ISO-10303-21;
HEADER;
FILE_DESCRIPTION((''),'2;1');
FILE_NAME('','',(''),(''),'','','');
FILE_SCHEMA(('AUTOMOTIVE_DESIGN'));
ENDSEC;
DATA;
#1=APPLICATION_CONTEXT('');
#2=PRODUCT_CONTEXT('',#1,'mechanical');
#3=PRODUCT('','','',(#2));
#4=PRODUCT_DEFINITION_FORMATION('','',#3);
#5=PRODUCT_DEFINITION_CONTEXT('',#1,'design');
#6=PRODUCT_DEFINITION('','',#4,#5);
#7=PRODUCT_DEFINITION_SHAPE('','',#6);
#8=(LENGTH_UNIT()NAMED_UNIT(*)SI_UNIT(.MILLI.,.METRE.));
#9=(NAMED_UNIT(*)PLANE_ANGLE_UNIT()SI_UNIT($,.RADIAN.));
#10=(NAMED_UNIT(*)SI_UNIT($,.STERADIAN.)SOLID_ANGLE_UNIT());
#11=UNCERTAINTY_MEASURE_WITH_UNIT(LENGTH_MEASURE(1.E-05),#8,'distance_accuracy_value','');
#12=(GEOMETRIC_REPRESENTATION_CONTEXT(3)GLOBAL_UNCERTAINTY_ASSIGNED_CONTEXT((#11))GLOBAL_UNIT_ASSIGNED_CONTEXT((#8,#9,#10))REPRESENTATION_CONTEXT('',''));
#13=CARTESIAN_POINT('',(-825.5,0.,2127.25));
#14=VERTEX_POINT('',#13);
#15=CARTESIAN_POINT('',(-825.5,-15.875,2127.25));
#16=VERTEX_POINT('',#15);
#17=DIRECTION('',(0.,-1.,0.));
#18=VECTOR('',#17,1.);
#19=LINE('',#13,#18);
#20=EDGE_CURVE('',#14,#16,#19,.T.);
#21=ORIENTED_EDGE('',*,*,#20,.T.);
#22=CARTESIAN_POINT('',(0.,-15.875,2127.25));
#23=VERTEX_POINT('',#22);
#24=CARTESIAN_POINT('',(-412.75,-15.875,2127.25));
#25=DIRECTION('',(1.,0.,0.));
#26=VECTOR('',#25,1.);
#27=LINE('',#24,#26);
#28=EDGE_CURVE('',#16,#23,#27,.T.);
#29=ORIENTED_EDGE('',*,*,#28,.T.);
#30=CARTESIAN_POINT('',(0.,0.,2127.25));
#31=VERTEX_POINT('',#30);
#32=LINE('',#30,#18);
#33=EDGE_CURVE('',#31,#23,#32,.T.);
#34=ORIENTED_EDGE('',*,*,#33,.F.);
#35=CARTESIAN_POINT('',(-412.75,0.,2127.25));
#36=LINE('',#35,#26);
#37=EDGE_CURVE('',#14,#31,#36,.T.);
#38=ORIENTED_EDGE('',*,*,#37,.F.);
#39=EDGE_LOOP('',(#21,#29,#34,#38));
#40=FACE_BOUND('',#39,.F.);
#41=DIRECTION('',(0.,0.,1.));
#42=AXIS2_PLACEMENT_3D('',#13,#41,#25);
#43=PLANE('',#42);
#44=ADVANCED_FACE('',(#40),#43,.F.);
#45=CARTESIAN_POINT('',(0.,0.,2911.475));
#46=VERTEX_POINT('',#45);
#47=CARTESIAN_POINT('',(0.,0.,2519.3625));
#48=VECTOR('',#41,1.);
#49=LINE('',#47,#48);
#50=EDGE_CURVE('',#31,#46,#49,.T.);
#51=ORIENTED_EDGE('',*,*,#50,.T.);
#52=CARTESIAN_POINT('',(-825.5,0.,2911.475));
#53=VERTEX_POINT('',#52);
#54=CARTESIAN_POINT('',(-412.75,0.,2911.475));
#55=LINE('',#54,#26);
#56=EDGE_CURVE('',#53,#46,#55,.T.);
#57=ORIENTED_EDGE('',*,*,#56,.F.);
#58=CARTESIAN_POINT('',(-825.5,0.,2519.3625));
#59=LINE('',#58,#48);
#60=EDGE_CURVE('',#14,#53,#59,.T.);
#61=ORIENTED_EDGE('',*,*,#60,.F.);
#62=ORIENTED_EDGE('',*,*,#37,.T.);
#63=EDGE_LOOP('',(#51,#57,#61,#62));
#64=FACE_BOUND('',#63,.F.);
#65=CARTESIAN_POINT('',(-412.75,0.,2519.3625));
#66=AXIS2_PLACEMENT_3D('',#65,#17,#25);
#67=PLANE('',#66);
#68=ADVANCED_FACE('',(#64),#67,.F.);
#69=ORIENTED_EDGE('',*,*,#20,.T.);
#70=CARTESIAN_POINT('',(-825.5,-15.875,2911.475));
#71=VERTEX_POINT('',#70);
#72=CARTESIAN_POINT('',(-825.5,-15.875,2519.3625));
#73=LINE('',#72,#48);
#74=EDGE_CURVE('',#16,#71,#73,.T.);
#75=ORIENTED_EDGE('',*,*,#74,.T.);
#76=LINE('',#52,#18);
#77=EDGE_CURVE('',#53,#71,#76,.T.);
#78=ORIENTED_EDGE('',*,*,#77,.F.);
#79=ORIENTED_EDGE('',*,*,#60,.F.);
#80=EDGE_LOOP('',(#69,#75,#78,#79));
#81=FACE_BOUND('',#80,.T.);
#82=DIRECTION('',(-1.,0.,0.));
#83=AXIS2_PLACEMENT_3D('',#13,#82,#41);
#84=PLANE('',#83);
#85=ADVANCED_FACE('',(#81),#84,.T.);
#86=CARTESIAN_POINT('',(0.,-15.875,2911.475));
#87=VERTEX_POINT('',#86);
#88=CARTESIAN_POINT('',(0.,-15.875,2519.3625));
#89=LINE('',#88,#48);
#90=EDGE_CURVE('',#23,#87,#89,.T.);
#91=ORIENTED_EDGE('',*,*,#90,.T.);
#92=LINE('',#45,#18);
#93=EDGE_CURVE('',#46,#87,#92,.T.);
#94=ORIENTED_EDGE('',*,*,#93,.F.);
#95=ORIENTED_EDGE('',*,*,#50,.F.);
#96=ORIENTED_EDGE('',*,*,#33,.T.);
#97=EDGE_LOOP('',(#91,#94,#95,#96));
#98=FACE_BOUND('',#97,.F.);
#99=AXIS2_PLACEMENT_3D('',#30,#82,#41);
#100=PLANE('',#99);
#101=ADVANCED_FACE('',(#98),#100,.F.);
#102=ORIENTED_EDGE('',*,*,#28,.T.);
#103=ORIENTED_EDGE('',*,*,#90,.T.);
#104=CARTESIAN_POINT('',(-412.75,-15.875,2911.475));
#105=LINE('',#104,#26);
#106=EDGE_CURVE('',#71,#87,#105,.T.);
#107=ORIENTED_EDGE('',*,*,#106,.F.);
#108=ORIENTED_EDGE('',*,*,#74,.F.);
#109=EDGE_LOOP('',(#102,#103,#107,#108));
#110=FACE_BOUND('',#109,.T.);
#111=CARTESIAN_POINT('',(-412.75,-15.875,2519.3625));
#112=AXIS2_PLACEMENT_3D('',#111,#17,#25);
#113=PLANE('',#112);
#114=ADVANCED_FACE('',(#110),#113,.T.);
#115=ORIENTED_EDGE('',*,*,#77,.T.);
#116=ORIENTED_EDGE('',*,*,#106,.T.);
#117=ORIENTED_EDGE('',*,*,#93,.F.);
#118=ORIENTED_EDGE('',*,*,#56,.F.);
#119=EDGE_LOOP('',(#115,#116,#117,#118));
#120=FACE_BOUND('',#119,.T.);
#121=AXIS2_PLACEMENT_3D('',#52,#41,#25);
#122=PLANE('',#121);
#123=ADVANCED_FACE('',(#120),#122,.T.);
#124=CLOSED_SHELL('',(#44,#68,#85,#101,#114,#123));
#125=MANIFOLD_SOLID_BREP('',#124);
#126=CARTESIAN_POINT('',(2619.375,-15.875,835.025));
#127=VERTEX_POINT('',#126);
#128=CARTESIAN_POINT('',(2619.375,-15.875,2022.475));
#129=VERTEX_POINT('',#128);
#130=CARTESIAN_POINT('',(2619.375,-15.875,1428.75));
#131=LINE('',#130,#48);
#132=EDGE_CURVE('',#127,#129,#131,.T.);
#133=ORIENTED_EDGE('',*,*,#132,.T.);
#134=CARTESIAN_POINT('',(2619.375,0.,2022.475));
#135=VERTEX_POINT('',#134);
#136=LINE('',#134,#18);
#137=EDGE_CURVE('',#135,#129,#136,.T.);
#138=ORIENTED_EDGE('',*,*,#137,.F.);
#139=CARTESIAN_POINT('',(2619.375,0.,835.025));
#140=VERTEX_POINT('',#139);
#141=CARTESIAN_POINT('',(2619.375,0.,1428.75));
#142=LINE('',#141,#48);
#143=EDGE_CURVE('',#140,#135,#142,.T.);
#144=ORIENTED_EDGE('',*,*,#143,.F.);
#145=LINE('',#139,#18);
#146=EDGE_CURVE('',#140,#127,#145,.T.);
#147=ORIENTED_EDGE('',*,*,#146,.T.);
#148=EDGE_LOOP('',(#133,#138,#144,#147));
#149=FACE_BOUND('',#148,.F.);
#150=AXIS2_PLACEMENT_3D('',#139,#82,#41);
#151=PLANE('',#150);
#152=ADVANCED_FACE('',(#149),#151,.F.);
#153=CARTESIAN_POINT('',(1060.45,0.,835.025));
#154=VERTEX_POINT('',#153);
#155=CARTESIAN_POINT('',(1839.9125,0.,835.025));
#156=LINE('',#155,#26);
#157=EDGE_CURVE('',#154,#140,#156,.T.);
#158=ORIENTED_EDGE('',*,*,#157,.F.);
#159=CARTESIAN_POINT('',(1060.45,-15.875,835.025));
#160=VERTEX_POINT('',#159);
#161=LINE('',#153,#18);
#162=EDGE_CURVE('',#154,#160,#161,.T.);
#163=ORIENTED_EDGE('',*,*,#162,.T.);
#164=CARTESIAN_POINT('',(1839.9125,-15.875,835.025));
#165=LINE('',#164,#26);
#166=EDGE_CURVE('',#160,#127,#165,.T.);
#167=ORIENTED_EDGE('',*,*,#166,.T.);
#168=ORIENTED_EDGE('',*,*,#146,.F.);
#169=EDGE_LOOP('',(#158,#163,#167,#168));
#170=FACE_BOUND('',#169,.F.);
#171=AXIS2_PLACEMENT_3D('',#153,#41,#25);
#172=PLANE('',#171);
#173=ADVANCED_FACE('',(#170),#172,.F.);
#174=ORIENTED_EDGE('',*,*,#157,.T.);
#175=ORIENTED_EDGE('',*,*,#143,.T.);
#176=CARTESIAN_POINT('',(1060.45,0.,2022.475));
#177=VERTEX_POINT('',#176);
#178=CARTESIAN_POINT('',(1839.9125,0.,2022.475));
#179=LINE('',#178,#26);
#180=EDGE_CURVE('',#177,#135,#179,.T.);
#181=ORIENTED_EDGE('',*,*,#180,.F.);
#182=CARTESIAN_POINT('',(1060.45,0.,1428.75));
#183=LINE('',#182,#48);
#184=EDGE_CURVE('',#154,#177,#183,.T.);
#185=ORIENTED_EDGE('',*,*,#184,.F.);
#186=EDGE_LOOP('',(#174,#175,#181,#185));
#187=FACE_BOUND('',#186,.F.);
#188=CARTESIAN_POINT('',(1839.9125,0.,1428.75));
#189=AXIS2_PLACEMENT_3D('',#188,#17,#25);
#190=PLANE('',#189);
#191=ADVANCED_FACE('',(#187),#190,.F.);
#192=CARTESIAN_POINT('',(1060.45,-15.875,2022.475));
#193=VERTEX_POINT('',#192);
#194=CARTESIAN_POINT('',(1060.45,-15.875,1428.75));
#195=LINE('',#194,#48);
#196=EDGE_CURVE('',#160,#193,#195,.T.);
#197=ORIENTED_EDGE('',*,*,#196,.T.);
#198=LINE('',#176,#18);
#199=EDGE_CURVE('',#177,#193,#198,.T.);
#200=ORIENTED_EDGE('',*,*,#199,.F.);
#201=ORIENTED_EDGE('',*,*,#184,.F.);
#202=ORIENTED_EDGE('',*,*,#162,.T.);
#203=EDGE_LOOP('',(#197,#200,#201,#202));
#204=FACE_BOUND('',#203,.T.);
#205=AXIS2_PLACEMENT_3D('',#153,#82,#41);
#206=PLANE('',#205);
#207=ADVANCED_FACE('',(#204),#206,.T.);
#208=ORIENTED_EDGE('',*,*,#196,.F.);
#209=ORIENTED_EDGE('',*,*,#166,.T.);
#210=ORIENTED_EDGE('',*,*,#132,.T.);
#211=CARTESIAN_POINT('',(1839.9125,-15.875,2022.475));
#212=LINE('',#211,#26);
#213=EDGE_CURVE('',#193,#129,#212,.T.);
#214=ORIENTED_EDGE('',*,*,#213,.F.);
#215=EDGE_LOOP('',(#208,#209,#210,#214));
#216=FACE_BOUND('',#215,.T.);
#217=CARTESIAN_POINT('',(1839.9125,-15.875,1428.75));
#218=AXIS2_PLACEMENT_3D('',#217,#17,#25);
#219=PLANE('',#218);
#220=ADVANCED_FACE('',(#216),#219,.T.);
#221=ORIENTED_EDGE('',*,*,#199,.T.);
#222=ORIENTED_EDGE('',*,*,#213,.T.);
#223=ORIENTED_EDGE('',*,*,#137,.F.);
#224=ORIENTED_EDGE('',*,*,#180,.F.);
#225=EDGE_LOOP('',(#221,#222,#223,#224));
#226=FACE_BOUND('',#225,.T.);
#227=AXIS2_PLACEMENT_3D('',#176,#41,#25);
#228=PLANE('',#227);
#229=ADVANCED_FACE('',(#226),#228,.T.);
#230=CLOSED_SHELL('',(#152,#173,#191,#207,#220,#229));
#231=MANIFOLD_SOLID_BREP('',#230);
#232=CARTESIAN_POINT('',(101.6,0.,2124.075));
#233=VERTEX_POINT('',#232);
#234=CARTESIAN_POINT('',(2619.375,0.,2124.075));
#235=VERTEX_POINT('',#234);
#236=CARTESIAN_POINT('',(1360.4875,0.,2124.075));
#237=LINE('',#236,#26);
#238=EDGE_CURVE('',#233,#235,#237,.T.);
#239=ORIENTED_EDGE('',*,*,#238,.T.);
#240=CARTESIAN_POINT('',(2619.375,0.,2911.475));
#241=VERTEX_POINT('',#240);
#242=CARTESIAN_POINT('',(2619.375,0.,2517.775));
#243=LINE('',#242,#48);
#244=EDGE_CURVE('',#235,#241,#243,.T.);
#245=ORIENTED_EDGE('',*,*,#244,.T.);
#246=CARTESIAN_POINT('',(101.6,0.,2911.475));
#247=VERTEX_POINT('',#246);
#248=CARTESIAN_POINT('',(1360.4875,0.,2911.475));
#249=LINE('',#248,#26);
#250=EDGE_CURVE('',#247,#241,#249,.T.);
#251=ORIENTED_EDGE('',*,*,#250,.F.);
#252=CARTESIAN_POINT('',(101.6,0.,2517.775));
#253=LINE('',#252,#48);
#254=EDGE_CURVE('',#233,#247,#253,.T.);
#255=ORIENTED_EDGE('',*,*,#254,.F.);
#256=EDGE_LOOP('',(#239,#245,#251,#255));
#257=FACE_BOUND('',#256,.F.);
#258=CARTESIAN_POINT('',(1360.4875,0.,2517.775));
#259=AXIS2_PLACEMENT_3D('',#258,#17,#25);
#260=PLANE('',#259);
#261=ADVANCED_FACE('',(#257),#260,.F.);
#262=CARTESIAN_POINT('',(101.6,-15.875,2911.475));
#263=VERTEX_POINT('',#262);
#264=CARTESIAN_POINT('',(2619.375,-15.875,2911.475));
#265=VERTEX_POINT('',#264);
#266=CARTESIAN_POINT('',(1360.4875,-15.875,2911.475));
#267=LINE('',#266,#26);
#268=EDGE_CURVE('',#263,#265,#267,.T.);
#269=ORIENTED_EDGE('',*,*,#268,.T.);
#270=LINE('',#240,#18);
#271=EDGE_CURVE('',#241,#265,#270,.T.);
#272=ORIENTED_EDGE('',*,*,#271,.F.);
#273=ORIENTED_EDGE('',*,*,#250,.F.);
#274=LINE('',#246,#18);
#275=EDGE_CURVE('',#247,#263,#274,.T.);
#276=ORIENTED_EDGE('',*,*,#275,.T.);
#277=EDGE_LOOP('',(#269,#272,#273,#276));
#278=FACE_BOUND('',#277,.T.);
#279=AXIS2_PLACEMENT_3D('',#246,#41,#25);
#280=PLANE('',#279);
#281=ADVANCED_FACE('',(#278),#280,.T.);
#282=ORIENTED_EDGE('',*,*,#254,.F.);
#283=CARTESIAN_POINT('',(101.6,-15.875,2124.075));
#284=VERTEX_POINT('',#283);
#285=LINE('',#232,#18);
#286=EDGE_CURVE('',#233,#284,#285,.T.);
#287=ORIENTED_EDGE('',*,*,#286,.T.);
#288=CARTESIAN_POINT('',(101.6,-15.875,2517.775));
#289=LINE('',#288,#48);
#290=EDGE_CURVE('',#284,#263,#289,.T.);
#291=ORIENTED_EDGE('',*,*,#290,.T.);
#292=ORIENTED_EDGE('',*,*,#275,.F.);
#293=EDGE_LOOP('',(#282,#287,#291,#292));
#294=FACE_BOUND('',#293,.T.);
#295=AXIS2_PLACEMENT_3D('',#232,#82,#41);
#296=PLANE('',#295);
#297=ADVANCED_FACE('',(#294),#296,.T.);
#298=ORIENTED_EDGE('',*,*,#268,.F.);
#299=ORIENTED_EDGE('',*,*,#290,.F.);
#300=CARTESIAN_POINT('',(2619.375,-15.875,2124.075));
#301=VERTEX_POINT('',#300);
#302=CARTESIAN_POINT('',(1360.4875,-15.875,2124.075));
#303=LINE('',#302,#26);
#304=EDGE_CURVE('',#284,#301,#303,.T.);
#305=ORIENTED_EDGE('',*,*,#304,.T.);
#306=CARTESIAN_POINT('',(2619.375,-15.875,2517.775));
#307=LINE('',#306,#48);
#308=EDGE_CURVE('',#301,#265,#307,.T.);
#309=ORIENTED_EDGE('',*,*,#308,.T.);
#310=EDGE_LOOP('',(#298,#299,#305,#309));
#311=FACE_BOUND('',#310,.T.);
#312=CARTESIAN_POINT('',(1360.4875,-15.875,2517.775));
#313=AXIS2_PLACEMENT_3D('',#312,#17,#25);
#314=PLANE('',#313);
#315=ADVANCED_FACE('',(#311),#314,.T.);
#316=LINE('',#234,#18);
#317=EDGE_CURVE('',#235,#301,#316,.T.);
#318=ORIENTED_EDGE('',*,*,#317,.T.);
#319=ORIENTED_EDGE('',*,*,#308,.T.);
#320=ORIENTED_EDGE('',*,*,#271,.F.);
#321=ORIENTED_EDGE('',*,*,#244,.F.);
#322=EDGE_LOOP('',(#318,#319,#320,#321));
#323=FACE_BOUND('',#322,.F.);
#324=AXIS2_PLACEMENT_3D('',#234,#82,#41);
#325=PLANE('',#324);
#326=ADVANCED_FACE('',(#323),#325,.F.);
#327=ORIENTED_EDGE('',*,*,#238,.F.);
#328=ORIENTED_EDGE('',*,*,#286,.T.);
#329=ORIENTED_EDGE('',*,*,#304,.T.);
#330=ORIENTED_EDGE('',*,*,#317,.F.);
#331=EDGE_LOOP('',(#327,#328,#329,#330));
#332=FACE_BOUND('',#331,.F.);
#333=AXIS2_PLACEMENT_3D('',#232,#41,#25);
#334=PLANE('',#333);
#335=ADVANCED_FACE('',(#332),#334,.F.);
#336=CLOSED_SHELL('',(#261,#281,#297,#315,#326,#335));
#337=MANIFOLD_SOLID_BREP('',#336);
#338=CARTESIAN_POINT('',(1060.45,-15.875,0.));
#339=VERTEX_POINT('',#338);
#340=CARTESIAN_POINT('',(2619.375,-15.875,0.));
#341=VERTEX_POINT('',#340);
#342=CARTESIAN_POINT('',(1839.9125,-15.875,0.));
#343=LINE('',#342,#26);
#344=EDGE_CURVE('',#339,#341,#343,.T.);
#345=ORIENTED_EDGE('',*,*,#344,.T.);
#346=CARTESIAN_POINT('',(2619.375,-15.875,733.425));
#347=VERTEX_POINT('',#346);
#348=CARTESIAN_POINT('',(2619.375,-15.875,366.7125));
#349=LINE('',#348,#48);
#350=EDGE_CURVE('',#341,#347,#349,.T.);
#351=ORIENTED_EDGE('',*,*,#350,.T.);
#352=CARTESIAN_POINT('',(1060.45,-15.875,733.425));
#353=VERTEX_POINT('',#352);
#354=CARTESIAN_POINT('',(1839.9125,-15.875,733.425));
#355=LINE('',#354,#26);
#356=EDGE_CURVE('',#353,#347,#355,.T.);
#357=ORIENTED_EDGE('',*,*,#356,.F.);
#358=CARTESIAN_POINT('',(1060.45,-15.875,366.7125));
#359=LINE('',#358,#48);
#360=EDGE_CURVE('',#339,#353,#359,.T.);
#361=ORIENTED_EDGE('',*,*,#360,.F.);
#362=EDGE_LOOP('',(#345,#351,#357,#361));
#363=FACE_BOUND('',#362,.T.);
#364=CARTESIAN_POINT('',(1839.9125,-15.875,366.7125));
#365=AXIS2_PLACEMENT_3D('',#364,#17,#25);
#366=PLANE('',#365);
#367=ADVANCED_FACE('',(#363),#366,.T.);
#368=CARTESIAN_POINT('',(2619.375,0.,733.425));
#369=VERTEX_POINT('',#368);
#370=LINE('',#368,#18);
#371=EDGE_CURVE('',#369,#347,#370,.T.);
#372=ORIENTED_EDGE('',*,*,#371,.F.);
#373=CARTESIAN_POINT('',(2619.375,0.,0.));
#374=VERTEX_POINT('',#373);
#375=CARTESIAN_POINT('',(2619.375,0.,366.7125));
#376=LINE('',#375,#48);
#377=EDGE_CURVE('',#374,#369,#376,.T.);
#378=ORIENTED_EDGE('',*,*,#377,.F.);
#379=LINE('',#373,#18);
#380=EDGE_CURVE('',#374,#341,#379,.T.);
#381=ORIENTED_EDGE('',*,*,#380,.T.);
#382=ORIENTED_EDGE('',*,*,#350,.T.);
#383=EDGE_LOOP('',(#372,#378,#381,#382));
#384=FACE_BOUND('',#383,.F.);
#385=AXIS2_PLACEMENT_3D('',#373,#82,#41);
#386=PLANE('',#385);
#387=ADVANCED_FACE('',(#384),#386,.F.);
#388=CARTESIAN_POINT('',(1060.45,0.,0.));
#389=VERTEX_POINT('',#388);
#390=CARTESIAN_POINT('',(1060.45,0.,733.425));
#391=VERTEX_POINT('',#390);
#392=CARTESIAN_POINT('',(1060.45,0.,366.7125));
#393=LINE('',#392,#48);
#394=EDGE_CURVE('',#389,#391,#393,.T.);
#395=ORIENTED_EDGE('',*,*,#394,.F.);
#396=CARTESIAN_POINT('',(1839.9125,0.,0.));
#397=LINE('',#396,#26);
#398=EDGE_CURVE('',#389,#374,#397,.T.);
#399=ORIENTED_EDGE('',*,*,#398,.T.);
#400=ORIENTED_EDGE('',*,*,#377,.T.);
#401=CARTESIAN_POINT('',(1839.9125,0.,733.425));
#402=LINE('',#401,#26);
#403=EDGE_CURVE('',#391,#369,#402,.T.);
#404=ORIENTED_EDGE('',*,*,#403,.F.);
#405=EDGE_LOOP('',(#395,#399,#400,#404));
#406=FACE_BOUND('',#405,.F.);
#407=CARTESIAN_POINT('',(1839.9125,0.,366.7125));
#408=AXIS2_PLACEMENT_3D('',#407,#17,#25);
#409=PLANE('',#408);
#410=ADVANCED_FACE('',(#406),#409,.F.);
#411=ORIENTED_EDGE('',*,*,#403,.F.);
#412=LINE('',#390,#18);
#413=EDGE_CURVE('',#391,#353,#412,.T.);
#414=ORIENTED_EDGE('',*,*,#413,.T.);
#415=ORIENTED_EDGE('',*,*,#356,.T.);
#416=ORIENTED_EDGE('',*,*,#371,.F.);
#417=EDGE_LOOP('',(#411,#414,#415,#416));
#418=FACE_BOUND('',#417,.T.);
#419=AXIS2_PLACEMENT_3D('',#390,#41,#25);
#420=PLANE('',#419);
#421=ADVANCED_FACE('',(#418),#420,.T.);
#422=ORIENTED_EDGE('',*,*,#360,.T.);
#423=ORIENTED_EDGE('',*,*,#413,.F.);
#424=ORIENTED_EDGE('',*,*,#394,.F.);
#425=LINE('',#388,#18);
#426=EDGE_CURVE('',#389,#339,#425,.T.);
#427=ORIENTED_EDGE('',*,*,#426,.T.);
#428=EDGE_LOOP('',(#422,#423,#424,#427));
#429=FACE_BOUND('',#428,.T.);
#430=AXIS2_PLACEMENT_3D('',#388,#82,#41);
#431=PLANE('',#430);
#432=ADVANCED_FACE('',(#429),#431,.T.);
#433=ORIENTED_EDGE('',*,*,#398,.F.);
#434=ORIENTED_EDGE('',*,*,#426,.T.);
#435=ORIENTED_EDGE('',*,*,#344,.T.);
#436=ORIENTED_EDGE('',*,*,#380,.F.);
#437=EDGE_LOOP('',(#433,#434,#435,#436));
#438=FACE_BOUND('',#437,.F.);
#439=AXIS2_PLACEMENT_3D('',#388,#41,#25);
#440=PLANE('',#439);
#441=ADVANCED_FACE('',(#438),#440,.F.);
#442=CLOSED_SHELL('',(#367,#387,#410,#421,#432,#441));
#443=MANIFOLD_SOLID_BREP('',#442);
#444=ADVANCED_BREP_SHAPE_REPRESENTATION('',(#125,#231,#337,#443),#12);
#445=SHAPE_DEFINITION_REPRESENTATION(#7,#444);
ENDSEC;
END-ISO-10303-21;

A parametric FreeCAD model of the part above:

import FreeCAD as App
import Part
import Sketcher
from FreeCAD import Vector
Q = App.Units.Quantity

doc = App.newDocument("Part")
body = doc.addObject("PartDesign::Body", "Body")
body.AllowCompound = True

# Sketch on XZ plane
sketch1 = doc.addObject("Sketcher::SketchObject", "Sketch")
body.addObject(sketch1)
sketch1.AttachmentSupport = (doc.XZ_Plane, [""])
sketch1.MapMode = "FlatFace"
sketch1.addGeometry([
    Part.LineSegment(Vector(-826, 2911, 0), Vector(-826, 2127, 0)),  # 0
    Part.LineSegment(Vector(-826, 2127, 0), Vector(0, 2127, 0)),  # 1
    Part.LineSegment(Vector(0, 2127, 0), Vector(0, 2911, 0)),  # 2
    Part.LineSegment(Vector(0, 2911, 0), Vector(-826, 2911, 0)),  # 3
    Part.LineSegment(Vector(102, 2911, 0), Vector(102, 2124, 0)),  # 4
    Part.LineSegment(Vector(102, 2124, 0), Vector(2619, 2124, 0)),  # 5
    Part.LineSegment(Vector(2619, 2124, 0), Vector(2619, 2911, 0)),  # 6
    Part.LineSegment(Vector(2619, 2911, 0), Vector(102, 2911, 0)),  # 7
    Part.LineSegment(Vector(1060, 2022, 0), Vector(1060, 835, 0)),  # 8
    Part.LineSegment(Vector(1060, 835, 0), Vector(2619, 835, 0)),  # 9
    Part.LineSegment(Vector(2619, 835, 0), Vector(2619, 2022, 0)),  # 10
    Part.LineSegment(Vector(2619, 2022, 0), Vector(1060, 2022, 0)),  # 11
    Part.LineSegment(Vector(1060, 733, 0), Vector(1060, 0, 0)),  # 12
    Part.LineSegment(Vector(1060, 0, 0), Vector(2619, 0, 0)),  # 13
    Part.LineSegment(Vector(2619, 0, 0), Vector(2619, 733, 0)),  # 14
    Part.LineSegment(Vector(2619, 733, 0), Vector(1060, 733, 0)),  # 15
], False)
sketch1.addConstraint([
    Sketcher.Constraint("Coincident", 0, 2, 1, 1),
    Sketcher.Constraint("Coincident", 1, 2, 2, 1),
    Sketcher.Constraint("Coincident", 2, 2, 3, 1),
    Sketcher.Constraint("Coincident", 3, 2, 0, 1),
    Sketcher.Constraint("Coincident", 4, 2, 5, 1),
    Sketcher.Constraint("Coincident", 5, 2, 6, 1),
    Sketcher.Constraint("Coincident", 6, 2, 7, 1),
    Sketcher.Constraint("Coincident", 7, 2, 4, 1),
    Sketcher.Constraint("Coincident", 8, 2, 9, 1),
    Sketcher.Constraint("Coincident", 9, 2, 10, 1),
    Sketcher.Constraint("Coincident", 10, 2, 11, 1),
    Sketcher.Constraint("Coincident", 11, 2, 8, 1),
    Sketcher.Constraint("Coincident", 12, 2, 13, 1),
    Sketcher.Constraint("Coincident", 13, 2, 14, 1),
    Sketcher.Constraint("Coincident", 14, 2, 15, 1),
    Sketcher.Constraint("Coincident", 15, 2, 12, 1),
    Sketcher.Constraint("Vertical", 0),
    Sketcher.Constraint("Horizontal", 1),
    Sketcher.Constraint("Vertical", 2),
    Sketcher.Constraint("Horizontal", 3),
    Sketcher.Constraint("Vertical", 4),
    Sketcher.Constraint("Horizontal", 5),
    Sketcher.Constraint("Vertical", 6),
    Sketcher.Constraint("Horizontal", 7),
    Sketcher.Constraint("Vertical", 8),
    Sketcher.Constraint("Horizontal", 9),
    Sketcher.Constraint("Vertical", 10),
    Sketcher.Constraint("Horizontal", 11),
    Sketcher.Constraint("Vertical", 12),
    Sketcher.Constraint("Horizontal", 13),
    Sketcher.Constraint("Vertical", 14),
    Sketcher.Constraint("Horizontal", 15),
    Sketcher.Constraint("PointOnObject", 1, 2, -2),
    Sketcher.Constraint("PointOnObject", 12, 2, -1),
    Sketcher.Constraint("Horizontal", 3, 2, 6, 2),
    Sketcher.Constraint("Vertical", 6, 2, 9, 2),
    Sketcher.Constraint("Vertical", 11, 2, 12, 2),
    Sketcher.Constraint("Vertical", 10, 2, 13, 2),
    Sketcher.Constraint("DistanceY", 4, 2, 4, 1, Q("31 in")),
    Sketcher.Constraint("DistanceX", 1, 1, 1, 2, Q("32.5 in")),
    Sketcher.Constraint("DistanceX", -1, 1, 4, 2, Q("4 in")),
    Sketcher.Constraint("DistanceY", 10, 2, 5, 2, Q("4 in")),
    Sketcher.Constraint("DistanceY", 14, 2, 9, 2, Q("4 in")),
    Sketcher.Constraint("DistanceY", 8, 2, 8, 1, Q("46.75 in")),
    Sketcher.Constraint("DistanceX", 5, 1, 5, 2, Q("99.125 in")),
    Sketcher.Constraint("DistanceX", 9, 1, 9, 2, Q("61.375 in")),
    Sketcher.Constraint("DistanceY", 0, 2, 0, 1, Q("30.875 in")),
    Sketcher.Constraint("DistanceY", 12, 2, 12, 1, Q("28.875 in")),
])
pad1 = doc.addObject("PartDesign::Pad", "Pad")
body.addObject(pad1)
pad1.Profile = sketch1
pad1.Length = Q("0.625 in")

doc.recompute()
